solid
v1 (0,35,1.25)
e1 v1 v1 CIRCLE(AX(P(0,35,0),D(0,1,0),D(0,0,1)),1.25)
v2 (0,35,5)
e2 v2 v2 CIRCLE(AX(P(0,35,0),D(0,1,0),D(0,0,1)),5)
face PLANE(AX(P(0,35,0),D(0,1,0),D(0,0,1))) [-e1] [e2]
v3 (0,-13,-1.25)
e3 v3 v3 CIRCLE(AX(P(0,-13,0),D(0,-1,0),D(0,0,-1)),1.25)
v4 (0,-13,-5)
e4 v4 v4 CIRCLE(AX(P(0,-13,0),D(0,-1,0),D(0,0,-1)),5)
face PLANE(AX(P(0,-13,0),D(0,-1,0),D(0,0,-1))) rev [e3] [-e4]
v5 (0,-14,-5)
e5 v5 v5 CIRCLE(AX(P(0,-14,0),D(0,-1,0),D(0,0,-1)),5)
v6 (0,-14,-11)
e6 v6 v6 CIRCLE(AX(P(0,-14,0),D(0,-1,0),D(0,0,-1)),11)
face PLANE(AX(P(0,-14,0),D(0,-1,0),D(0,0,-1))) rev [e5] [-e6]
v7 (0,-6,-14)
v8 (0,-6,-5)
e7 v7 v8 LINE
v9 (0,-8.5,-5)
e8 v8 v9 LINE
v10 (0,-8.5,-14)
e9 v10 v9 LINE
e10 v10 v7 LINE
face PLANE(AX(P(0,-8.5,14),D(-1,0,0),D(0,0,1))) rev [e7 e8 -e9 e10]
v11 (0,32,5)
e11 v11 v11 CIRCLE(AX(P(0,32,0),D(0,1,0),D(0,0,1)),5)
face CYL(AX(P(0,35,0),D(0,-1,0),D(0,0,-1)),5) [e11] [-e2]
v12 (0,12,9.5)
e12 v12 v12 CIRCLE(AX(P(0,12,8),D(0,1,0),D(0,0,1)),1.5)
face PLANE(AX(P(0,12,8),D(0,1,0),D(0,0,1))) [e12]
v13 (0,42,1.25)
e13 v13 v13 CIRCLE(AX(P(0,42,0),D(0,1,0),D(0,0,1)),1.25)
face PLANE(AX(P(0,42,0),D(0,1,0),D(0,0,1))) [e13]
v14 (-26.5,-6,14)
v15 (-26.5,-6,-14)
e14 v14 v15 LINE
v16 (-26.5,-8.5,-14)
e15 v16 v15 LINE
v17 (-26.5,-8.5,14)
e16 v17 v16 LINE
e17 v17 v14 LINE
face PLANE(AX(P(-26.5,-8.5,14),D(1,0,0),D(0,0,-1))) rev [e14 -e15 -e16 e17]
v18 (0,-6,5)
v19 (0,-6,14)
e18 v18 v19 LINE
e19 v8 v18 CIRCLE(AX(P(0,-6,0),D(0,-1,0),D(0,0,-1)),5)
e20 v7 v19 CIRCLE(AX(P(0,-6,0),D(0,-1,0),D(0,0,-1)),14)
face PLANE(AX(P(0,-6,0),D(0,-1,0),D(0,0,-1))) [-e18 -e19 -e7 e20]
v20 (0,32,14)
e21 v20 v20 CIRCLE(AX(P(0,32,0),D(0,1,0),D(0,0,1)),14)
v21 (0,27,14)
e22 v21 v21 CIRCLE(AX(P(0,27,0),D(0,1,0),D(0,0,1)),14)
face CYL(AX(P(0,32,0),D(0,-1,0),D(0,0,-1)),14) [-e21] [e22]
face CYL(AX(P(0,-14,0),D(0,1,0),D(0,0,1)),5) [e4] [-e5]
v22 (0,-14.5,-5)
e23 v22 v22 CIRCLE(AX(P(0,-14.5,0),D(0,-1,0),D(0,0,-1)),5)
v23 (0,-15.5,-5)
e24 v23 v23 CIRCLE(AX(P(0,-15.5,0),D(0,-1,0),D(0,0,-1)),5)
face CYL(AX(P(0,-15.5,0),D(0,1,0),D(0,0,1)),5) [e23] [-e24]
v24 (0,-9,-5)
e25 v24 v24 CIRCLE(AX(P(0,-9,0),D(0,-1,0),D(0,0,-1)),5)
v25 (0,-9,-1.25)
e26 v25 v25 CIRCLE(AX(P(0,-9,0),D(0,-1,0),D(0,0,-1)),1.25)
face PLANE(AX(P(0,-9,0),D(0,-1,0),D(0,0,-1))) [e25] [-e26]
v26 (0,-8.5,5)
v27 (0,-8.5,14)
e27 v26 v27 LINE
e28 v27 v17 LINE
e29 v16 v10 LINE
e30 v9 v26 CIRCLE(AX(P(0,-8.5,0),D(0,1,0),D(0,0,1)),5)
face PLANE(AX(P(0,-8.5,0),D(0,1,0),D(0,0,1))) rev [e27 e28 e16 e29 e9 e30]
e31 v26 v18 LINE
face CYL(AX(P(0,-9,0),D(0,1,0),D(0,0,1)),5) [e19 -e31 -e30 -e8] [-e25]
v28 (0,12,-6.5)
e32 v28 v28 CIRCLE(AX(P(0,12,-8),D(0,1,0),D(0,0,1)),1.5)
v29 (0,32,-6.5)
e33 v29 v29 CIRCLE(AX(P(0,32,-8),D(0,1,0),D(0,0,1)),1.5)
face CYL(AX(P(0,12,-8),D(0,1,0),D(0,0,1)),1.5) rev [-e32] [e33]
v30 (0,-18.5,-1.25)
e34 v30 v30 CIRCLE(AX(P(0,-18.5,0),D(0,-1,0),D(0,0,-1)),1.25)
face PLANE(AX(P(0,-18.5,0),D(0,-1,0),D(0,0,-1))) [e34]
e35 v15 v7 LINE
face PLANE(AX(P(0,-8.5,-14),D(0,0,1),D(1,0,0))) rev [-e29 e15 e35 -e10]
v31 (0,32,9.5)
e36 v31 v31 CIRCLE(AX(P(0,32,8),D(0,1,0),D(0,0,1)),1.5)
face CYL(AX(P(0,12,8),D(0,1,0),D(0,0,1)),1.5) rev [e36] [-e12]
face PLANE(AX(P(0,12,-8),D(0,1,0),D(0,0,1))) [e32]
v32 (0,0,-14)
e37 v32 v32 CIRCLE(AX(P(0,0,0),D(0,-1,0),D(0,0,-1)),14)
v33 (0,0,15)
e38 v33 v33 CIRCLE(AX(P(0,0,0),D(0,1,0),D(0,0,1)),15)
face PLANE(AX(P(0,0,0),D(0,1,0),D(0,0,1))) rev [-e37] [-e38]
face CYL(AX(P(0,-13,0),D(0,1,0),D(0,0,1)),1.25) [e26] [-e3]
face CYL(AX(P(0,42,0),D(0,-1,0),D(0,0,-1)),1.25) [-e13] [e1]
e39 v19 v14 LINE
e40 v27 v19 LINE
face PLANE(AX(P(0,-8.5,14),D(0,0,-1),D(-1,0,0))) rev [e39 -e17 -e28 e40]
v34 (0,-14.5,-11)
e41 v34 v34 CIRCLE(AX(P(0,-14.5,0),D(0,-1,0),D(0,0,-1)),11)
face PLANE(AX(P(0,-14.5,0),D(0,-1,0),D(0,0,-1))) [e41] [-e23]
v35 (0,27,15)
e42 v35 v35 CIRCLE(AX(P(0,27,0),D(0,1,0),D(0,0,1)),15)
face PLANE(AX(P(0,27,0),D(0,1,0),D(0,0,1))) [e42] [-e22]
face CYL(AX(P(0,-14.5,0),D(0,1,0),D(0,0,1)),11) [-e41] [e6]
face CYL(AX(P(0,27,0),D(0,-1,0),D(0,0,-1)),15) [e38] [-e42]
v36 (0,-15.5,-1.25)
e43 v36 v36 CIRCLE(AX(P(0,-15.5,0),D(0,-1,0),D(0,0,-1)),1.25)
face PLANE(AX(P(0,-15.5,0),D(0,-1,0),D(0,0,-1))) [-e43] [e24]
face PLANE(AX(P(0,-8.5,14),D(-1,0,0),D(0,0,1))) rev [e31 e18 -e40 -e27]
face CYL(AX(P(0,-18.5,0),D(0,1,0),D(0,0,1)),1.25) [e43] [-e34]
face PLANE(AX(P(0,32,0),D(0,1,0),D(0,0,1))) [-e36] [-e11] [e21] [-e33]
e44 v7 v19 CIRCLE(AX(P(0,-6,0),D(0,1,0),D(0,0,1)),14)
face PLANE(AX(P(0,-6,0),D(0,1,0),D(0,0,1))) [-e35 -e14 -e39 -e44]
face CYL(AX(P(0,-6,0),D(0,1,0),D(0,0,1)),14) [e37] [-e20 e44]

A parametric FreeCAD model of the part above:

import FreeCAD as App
import Part
import Sketcher
from FreeCAD import Vector
Q = App.Units.Quantity

doc = App.newDocument("Part")
params = doc.addObject("Spreadsheet::Sheet", "Params")
for row, (alias, value) in enumerate([
    ("sketch1_diameter", "30 mm"),
    ("pad1_length", "27 mm"),
    ("sketch2_diameter", "28 mm"),
    ("pad2_length", "5 mm"),
    ("sketch3_diameter", "10 mm"),
    ("pad3_length", "3 mm"),
    ("sketch4_diameter", "2.5 mm"),
    ("pad4_length", "7 mm"),
    ("sketch5_diameter", "28 mm"),
    ("pad5_length", "6 mm"),
    ("sketch6_diameter", "10 mm"),
    ("pad6_length", "3 mm"),
    ("sketch7_height", "28 mm"),
    ("sketch7_width", "26.5 mm"),
    ("pad7_length", "2.5 mm"),
    ("sketch8_diameter", "2.5 mm"),
    ("pad8_length", "4 mm"),
    ("sketch9_diameter", "10 mm"),
    ("pad9_length", "1 mm"),
    ("sketch10_diameter", "22 mm"),
    ("pad10_length", "0.5 mm"),
    ("sketch11_diameter", "10 mm"),
    ("pad11_length", "1 mm"),
    ("sketch12_diameter", "2.5 mm"),
    ("pad12_length", "3 mm"),
    ("sketch13_diameter", "3 mm"),
    ("pocket1_length", "20 mm"),
], start=1):
    params.set(f"A{row}", alias)
    params.set(f"B{row}", "=" + value)
    params.setAlias(f"B{row}", alias)

body = doc.addObject("PartDesign::Body", "Body")

# Sketch on XZ plane
sketch1 = body.newObject("Sketcher::SketchObject", "Sketch")
sketch1.AttachmentSupport = (doc.getObject("XZ_Plane"), [""])
sketch1.MapMode = "FlatFace"
sketch1.addGeometry(Part.Circle(Vector(0, 0, 0), Vector(0, 0, 1), 15), False)
sketch1.addConstraint([
    Sketcher.Constraint("Coincident", 0, 3, -1, 1),
    Sketcher.Constraint("Diameter", 0, Q("30 mm")),
])
sketch1.setExpression("Constraints[1]", "Params.sketch1_diameter")
pad1 = body.newObject("PartDesign::Pad", "Pad")
pad1.Profile = sketch1
pad1.setExpression("Length", "Params.pad1_length")
pad1.Reversed = True

# Sketch on XZ plane
sketch2 = body.newObject("Sketcher::SketchObject", "Sketch001")
sketch2.AttachmentSupport = (doc.getObject("XZ_Plane"), [""])
sketch2.MapMode = "FlatFace"
sketch2.AttachmentOffset = App.Placement(Vector(0, 0, -27), App.Rotation())
sketch2.addGeometry(Part.Circle(Vector(0, 0, 0), Vector(0, 0, 1), 14), False)
sketch2.addConstraint([
    Sketcher.Constraint("Coincident", 0, 3, -1, 1),
    Sketcher.Constraint("Diameter", 0, Q("28 mm")),
])
sketch2.setExpression("Constraints[1]", "Params.sketch2_diameter")
pad2 = body.newObject("PartDesign::Pad", "Pad001")
pad2.Profile = sketch2
pad2.setExpression("Length", "Params.pad2_length")
pad2.Reversed = True

# Sketch on XZ plane
sketch3 = body.newObject("Sketcher::SketchObject", "Sketch002")
sketch3.AttachmentSupport = (doc.getObject("XZ_Plane"), [""])
sketch3.MapMode = "FlatFace"
sketch3.AttachmentOffset = App.Placement(Vector(0, 0, -32), App.Rotation())
sketch3.addGeometry(Part.Circle(Vector(0, 0, 0), Vector(0, 0, 1), 5), False)
sketch3.addConstraint([
    Sketcher.Constraint("Coincident", 0, 3, -1, 1),
    Sketcher.Constraint("Diameter", 0, Q("10 mm")),
])
sketch3.setExpression("Constraints[1]", "Params.sketch3_diameter")
pad3 = body.newObject("PartDesign::Pad", "Pad002")
pad3.Profile = sketch3
pad3.setExpression("Length", "Params.pad3_length")
pad3.Reversed = True

# Sketch on XZ plane
sketch4 = body.newObject("Sketcher::SketchObject", "Sketch003")
sketch4.AttachmentSupport = (doc.getObject("XZ_Plane"), [""])
sketch4.MapMode = "FlatFace"
sketch4.AttachmentOffset = App.Placement(Vector(0, 0, -35), App.Rotation())
sketch4.addGeometry(Part.Circle(Vector(0, 0, 0), Vector(0, 0, 1), 1.2), False)
sketch4.addConstraint([
    Sketcher.Constraint("Coincident", 0, 3, -1, 1),
    Sketcher.Constraint("Diameter", 0, Q("2.5 mm")),
])
sketch4.setExpression("Constraints[1]", "Params.sketch4_diameter")
pad4 = body.newObject("PartDesign::Pad", "Pad003")
pad4.Profile = sketch4
pad4.setExpression("Length", "Params.pad4_length")
pad4.Reversed = True

# Sketch on XZ plane
sketch5 = body.newObject("Sketcher::SketchObject", "Sketch004")
sketch5.AttachmentSupport = (doc.getObject("XZ_Plane"), [""])
sketch5.MapMode = "FlatFace"
sketch5.AttachmentOffset = App.Placement(Vector(0, 0, 6), App.Rotation())
sketch5.addGeometry(Part.Circle(Vector(0, 0, 0), Vector(0, 0, 1), 14), False)
sketch5.addConstraint([
    Sketcher.Constraint("Coincident", 0, 3, -1, 1),
    Sketcher.Constraint("Diameter", 0, Q("28 mm")),
])
sketch5.setExpression("Constraints[1]", "Params.sketch5_diameter")
pad5 = body.newObject("PartDesign::Pad", "Pad004")
pad5.Profile = sketch5
pad5.setExpression("Length", "Params.pad5_length")
pad5.Reversed = True

# Sketch on XZ plane
sketch6 = body.newObject("Sketcher::SketchObject", "Sketch005")
sketch6.AttachmentSupport = (doc.getObject("XZ_Plane"), [""])
sketch6.MapMode = "FlatFace"
sketch6.AttachmentOffset = App.Placement(Vector(0, 0, 9), App.Rotation())
sketch6.addGeometry(Part.Circle(Vector(0, 0, 0), Vector(0, 0, 1), 5), False)
sketch6.addConstraint([
    Sketcher.Constraint("Coincident", 0, 3, -1, 1),
    Sketcher.Constraint("Diameter", 0, Q("10 mm")),
])
sketch6.setExpression("Constraints[1]", "Params.sketch6_diameter")
pad6 = body.newObject("PartDesign::Pad", "Pad005")
pad6.Profile = sketch6
pad6.setExpression("Length", "Params.pad6_length")
pad6.Reversed = True

# Sketch on XZ plane
sketch7 = body.newObject("Sketcher::SketchObject", "Sketch006")
sketch7.AttachmentSupport = (doc.getObject("XZ_Plane"), [""])
sketch7.MapMode = "FlatFace"
sketch7.AttachmentOffset = App.Placement(Vector(0, 0, 6), App.Rotation())
sketch7.addGeometry([
    Part.LineSegment(Vector(-26, 14, 0), Vector(-26, -14, 0)),
    Part.LineSegment(Vector(-26, -14, 0), Vector(0, -14, 0)),
    Part.LineSegment(Vector(0, -14, 0), Vector(0, 14, 0)),
    Part.LineSegment(Vector(0, 14, 0), Vector(-26, 14, 0)),
], False)
sketch7.addConstraint([
    Sketcher.Constraint("Coincident", 0, 2, 1, 1),
    Sketcher.Constraint("Coincident", 1, 2, 2, 1),
    Sketcher.Constraint("Coincident", 2, 2, 3, 1),
    Sketcher.Constraint("Coincident", 3, 2, 0, 1),
    Sketcher.Constraint("Vertical", 0),
    Sketcher.Constraint("Horizontal", 1),
    Sketcher.Constraint("Vertical", 2),
    Sketcher.Constraint("Horizontal", 3),
    Sketcher.Constraint("Symmetric", 1, 2, 2, 2, -1, 1),
    Sketcher.Constraint("DistanceY", 0, 2, 0, 1, Q("28 mm")),
    Sketcher.Constraint("DistanceX", 1, 1, 1, 2, Q("26.5 mm")),
])
sketch7.setExpression("Constraints[9]", "Params.sketch7_height")
sketch7.setExpression("Constraints[10]", "Params.sketch7_width")
pad7 = body.newObject("PartDesign::Pad", "Pad006")
pad7.Profile = sketch7
pad7.setExpression("Length", "Params.pad7_length")

# Sketch on XZ plane
sketch8 = body.newObject("Sketcher::SketchObject", "Sketch007")
sketch8.AttachmentSupport = (doc.getObject("XZ_Plane"), [""])
sketch8.MapMode = "FlatFace"
sketch8.AttachmentOffset = App.Placement(Vector(0, 0, 13), App.Rotation())
sketch8.addGeometry(Part.Circle(Vector(0, 0, 0), Vector(0, 0, 1), 1.2), False)
sketch8.addConstraint([
    Sketcher.Constraint("Coincident", 0, 3, -1, 1),
    Sketcher.Constraint("Diameter", 0, Q("2.5 mm")),
])
sketch8.setExpression("Constraints[1]", "Params.sketch8_diameter")
pad8 = body.newObject("PartDesign::Pad", "Pad007")
pad8.Profile = sketch8
pad8.setExpression("Length", "Params.pad8_length")
pad8.Reversed = True

# Sketch on XZ plane
sketch9 = body.newObject("Sketcher::SketchObject", "Sketch008")
sketch9.AttachmentSupport = (doc.getObject("XZ_Plane"), [""])
sketch9.MapMode = "FlatFace"
sketch9.AttachmentOffset = App.Placement(Vector(0, 0, 14), App.Rotation())
sketch9.addGeometry(Part.Circle(Vector(0, 0, 0), Vector(0, 0, 1), 5), False)
sketch9.addConstraint([
    Sketcher.Constraint("Coincident", 0, 3, -1, 1),
    Sketcher.Constraint("Diameter", 0, Q("10 mm")),
])
sketch9.setExpression("Constraints[1]", "Params.sketch9_diameter")
pad9 = body.newObject("PartDesign::Pad", "Pad008")
pad9.Profile = sketch9
pad9.setExpression("Length", "Params.pad9_length")
pad9.Reversed = True

# Sketch on XZ plane
sketch10 = body.newObject("Sketcher::SketchObject", "Sketch009")
sketch10.AttachmentSupport = (doc.getObject("XZ_Plane"), [""])
sketch10.MapMode = "FlatFace"
sketch10.AttachmentOffset = App.Placement(Vector(0, 0, 14), App.Rotation())
sketch10.addGeometry(Part.Circle(Vector(0, 0, 0), Vector(0, 0, 1), 11), False)
sketch10.addConstraint([
    Sketcher.Constraint("Coincident", 0, 3, -1, 1),
    Sketcher.Constraint("Diameter", 0, Q("22 mm")),
])
sketch10.setExpression("Constraints[1]", "Params.sketch10_diameter")
pad10 = body.newObject("PartDesign::Pad", "Pad009")
pad10.Profile = sketch10
pad10.setExpression("Length", "Params.pad10_length")

# Sketch on XZ plane
sketch11 = body.newObject("Sketcher::SketchObject", "Sketch010")
sketch11.AttachmentSupport = (doc.getObject("XZ_Plane"), [""])
sketch11.MapMode = "FlatFace"
sketch11.AttachmentOffset = App.Placement(Vector(0, 0, 15.5), App.Rotation())
sketch11.addGeometry(Part.Circle(Vector(0, 0, 0), Vector(0, 0, 1), 5), False)
sketch11.addConstraint([
    Sketcher.Constraint("Coincident", 0, 3, -1, 1),
    Sketcher.Constraint("Diameter", 0, Q("10 mm")),
])
sketch11.setExpression("Constraints[1]", "Params.sketch11_diameter")
pad11 = body.newObject("PartDesign::Pad", "Pad010")
pad11.Profile = sketch11
pad11.setExpression("Length", "Params.pad11_length")
pad11.Reversed = True

# Sketch on XZ plane
sketch12 = body.newObject("Sketcher::SketchObject", "Sketch011")
sketch12.AttachmentSupport = (doc.getObject("XZ_Plane"), [""])
sketch12.MapMode = "FlatFace"
sketch12.AttachmentOffset = App.Placement(Vector(0, 0, 18.5), App.Rotation())
sketch12.addGeometry(Part.Circle(Vector(0, 0, 0), Vector(0, 0, 1), 1.2), False)
sketch12.addConstraint([
    Sketcher.Constraint("Coincident", 0, 3, -1, 1),
    Sketcher.Constraint("Diameter", 0, Q("2.5 mm")),
])
sketch12.setExpression("Constraints[1]", "Params.sketch12_diameter")
pad12 = body.newObject("PartDesign::Pad", "Pad011")
pad12.Profile = sketch12
pad12.setExpression("Length", "Params.pad12_length")
pad12.Reversed = True

# Sketch on XZ plane
sketch13 = body.newObject("Sketcher::SketchObject", "Sketch012")
sketch13.AttachmentSupport = (doc.getObject("XZ_Plane"), [""])
sketch13.MapMode = "FlatFace"
sketch13.AttachmentOffset = App.Placement(Vector(0, 0, -32), App.Rotation())
sketch13.addGeometry([
    Part.Circle(Vector(0, -8, 0), Vector(0, 0, 1), 1.5),
    Part.Circle(Vector(0, 8, 0), Vector(0, 0, 1), 1.5),
], False)
sketch13.addConstraint([
    Sketcher.Constraint("Equal", 0, 1),
    Sketcher.Constraint("Symmetric", 0, 3, 1, 3, -1, 1),
    Sketcher.Constraint("PointOnObject", 0, 3, -2),
    Sketcher.Constraint("Diameter", 0, Q("3 mm")),
    Sketcher.Constraint("DistanceY", 0, 3, -1, 1, Q("8 mm")),
])
sketch13.setExpression("Constraints[3]", "Params.sketch13_diameter")
pocket1 = body.newObject("PartDesign::Pocket", "Pocket")
pocket1.Profile = sketch13
pocket1.setExpression("Length", "Params.pocket1_length")
pocket1.Reversed = True

doc.recompute()
